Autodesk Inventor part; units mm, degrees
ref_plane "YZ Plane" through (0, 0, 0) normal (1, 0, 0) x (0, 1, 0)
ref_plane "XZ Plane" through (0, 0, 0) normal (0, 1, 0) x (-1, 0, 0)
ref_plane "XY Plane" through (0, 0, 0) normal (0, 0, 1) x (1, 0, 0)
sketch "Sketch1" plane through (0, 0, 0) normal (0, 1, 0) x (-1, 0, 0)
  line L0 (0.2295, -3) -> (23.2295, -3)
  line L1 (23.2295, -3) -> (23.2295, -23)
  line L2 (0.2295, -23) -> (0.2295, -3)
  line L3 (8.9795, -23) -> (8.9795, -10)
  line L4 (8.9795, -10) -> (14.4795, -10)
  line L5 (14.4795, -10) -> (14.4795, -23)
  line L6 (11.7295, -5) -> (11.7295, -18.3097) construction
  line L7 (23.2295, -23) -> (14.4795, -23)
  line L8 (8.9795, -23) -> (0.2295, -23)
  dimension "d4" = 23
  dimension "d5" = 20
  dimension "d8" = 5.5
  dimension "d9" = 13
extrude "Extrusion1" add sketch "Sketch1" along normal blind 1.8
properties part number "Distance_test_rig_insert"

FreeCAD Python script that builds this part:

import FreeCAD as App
import Part
import Sketcher

V = App.Vector


def add_polygon(sketch, points):
    """Adds a closed chain of lines whose ends are joined by coincident constraints."""
    first, n = sketch.GeometryCount, len(points)
    for a, b in zip(points, points[1:] + points[:1]):
        sketch.addGeometry(Part.LineSegment(App.Vector(*a, 0), App.Vector(*b, 0)), False)
    for i in range(n):
        sketch.addConstraint(Sketcher.Constraint("Coincident", first + i, 2, first + (i + 1) % n, 1))

doc = App.newDocument("Part")
body = doc.addObject("PartDesign::Body", "Body")

sketch1 = body.newObject("Sketcher::SketchObject", "Sketch")
sketch1.AttachmentSupport = (doc.getObject("XZ_Plane"), [""])
sketch1.MapMode = "FlatFace"
add_polygon(sketch1, [(-23, -3), (0, -3), (0, -23), (-9, -23), (-9, -10), (-14, -10), (-14, -23), (-23, -23)])
sketch1.addConstraint(Sketcher.Constraint("Horizontal", 0))
sketch1.addConstraint(Sketcher.Constraint("Vertical", 1))
sketch1.addConstraint(Sketcher.Constraint("Horizontal", 2))
sketch1.addConstraint(Sketcher.Constraint("Vertical", 3))
sketch1.addConstraint(Sketcher.Constraint("Horizontal", 4))
sketch1.addConstraint(Sketcher.Constraint("Vertical", 5))
sketch1.addConstraint(Sketcher.Constraint("Horizontal", 6))
sketch1.addConstraint(Sketcher.Constraint("Vertical", 7))
sketch1.addConstraint(Sketcher.Constraint("Horizontal", 2, 2, 5, 2))
sketch1.addConstraint(Sketcher.Constraint("Equal", 2, 6))
sketch1.addConstraint(Sketcher.Constraint("DistanceX", 0, 1, 0, 2, 23.0))
sketch1.addConstraint(Sketcher.Constraint("DistanceY", 1, 2, 1, 1, 20.0))
sketch1.addConstraint(Sketcher.Constraint("DistanceY", 3, 1, 3, 2, 13.0))
sketch1.addConstraint(Sketcher.Constraint("DistanceX", 4, 2, 4, 1, 5.5))
sketch1.addConstraint(Sketcher.Constraint("DistanceY", 1, 2, -1, 1, 23.0))
sketch1.addConstraint(Sketcher.Constraint("DistanceX", 0, 2, -1, 1, 0.2295))
pad1 = body.newObject("PartDesign::Pad", "Pad")
pad1.Profile = sketch1
pad1.Length = 1.8
pad1.Reversed = True

doc.recompute()
